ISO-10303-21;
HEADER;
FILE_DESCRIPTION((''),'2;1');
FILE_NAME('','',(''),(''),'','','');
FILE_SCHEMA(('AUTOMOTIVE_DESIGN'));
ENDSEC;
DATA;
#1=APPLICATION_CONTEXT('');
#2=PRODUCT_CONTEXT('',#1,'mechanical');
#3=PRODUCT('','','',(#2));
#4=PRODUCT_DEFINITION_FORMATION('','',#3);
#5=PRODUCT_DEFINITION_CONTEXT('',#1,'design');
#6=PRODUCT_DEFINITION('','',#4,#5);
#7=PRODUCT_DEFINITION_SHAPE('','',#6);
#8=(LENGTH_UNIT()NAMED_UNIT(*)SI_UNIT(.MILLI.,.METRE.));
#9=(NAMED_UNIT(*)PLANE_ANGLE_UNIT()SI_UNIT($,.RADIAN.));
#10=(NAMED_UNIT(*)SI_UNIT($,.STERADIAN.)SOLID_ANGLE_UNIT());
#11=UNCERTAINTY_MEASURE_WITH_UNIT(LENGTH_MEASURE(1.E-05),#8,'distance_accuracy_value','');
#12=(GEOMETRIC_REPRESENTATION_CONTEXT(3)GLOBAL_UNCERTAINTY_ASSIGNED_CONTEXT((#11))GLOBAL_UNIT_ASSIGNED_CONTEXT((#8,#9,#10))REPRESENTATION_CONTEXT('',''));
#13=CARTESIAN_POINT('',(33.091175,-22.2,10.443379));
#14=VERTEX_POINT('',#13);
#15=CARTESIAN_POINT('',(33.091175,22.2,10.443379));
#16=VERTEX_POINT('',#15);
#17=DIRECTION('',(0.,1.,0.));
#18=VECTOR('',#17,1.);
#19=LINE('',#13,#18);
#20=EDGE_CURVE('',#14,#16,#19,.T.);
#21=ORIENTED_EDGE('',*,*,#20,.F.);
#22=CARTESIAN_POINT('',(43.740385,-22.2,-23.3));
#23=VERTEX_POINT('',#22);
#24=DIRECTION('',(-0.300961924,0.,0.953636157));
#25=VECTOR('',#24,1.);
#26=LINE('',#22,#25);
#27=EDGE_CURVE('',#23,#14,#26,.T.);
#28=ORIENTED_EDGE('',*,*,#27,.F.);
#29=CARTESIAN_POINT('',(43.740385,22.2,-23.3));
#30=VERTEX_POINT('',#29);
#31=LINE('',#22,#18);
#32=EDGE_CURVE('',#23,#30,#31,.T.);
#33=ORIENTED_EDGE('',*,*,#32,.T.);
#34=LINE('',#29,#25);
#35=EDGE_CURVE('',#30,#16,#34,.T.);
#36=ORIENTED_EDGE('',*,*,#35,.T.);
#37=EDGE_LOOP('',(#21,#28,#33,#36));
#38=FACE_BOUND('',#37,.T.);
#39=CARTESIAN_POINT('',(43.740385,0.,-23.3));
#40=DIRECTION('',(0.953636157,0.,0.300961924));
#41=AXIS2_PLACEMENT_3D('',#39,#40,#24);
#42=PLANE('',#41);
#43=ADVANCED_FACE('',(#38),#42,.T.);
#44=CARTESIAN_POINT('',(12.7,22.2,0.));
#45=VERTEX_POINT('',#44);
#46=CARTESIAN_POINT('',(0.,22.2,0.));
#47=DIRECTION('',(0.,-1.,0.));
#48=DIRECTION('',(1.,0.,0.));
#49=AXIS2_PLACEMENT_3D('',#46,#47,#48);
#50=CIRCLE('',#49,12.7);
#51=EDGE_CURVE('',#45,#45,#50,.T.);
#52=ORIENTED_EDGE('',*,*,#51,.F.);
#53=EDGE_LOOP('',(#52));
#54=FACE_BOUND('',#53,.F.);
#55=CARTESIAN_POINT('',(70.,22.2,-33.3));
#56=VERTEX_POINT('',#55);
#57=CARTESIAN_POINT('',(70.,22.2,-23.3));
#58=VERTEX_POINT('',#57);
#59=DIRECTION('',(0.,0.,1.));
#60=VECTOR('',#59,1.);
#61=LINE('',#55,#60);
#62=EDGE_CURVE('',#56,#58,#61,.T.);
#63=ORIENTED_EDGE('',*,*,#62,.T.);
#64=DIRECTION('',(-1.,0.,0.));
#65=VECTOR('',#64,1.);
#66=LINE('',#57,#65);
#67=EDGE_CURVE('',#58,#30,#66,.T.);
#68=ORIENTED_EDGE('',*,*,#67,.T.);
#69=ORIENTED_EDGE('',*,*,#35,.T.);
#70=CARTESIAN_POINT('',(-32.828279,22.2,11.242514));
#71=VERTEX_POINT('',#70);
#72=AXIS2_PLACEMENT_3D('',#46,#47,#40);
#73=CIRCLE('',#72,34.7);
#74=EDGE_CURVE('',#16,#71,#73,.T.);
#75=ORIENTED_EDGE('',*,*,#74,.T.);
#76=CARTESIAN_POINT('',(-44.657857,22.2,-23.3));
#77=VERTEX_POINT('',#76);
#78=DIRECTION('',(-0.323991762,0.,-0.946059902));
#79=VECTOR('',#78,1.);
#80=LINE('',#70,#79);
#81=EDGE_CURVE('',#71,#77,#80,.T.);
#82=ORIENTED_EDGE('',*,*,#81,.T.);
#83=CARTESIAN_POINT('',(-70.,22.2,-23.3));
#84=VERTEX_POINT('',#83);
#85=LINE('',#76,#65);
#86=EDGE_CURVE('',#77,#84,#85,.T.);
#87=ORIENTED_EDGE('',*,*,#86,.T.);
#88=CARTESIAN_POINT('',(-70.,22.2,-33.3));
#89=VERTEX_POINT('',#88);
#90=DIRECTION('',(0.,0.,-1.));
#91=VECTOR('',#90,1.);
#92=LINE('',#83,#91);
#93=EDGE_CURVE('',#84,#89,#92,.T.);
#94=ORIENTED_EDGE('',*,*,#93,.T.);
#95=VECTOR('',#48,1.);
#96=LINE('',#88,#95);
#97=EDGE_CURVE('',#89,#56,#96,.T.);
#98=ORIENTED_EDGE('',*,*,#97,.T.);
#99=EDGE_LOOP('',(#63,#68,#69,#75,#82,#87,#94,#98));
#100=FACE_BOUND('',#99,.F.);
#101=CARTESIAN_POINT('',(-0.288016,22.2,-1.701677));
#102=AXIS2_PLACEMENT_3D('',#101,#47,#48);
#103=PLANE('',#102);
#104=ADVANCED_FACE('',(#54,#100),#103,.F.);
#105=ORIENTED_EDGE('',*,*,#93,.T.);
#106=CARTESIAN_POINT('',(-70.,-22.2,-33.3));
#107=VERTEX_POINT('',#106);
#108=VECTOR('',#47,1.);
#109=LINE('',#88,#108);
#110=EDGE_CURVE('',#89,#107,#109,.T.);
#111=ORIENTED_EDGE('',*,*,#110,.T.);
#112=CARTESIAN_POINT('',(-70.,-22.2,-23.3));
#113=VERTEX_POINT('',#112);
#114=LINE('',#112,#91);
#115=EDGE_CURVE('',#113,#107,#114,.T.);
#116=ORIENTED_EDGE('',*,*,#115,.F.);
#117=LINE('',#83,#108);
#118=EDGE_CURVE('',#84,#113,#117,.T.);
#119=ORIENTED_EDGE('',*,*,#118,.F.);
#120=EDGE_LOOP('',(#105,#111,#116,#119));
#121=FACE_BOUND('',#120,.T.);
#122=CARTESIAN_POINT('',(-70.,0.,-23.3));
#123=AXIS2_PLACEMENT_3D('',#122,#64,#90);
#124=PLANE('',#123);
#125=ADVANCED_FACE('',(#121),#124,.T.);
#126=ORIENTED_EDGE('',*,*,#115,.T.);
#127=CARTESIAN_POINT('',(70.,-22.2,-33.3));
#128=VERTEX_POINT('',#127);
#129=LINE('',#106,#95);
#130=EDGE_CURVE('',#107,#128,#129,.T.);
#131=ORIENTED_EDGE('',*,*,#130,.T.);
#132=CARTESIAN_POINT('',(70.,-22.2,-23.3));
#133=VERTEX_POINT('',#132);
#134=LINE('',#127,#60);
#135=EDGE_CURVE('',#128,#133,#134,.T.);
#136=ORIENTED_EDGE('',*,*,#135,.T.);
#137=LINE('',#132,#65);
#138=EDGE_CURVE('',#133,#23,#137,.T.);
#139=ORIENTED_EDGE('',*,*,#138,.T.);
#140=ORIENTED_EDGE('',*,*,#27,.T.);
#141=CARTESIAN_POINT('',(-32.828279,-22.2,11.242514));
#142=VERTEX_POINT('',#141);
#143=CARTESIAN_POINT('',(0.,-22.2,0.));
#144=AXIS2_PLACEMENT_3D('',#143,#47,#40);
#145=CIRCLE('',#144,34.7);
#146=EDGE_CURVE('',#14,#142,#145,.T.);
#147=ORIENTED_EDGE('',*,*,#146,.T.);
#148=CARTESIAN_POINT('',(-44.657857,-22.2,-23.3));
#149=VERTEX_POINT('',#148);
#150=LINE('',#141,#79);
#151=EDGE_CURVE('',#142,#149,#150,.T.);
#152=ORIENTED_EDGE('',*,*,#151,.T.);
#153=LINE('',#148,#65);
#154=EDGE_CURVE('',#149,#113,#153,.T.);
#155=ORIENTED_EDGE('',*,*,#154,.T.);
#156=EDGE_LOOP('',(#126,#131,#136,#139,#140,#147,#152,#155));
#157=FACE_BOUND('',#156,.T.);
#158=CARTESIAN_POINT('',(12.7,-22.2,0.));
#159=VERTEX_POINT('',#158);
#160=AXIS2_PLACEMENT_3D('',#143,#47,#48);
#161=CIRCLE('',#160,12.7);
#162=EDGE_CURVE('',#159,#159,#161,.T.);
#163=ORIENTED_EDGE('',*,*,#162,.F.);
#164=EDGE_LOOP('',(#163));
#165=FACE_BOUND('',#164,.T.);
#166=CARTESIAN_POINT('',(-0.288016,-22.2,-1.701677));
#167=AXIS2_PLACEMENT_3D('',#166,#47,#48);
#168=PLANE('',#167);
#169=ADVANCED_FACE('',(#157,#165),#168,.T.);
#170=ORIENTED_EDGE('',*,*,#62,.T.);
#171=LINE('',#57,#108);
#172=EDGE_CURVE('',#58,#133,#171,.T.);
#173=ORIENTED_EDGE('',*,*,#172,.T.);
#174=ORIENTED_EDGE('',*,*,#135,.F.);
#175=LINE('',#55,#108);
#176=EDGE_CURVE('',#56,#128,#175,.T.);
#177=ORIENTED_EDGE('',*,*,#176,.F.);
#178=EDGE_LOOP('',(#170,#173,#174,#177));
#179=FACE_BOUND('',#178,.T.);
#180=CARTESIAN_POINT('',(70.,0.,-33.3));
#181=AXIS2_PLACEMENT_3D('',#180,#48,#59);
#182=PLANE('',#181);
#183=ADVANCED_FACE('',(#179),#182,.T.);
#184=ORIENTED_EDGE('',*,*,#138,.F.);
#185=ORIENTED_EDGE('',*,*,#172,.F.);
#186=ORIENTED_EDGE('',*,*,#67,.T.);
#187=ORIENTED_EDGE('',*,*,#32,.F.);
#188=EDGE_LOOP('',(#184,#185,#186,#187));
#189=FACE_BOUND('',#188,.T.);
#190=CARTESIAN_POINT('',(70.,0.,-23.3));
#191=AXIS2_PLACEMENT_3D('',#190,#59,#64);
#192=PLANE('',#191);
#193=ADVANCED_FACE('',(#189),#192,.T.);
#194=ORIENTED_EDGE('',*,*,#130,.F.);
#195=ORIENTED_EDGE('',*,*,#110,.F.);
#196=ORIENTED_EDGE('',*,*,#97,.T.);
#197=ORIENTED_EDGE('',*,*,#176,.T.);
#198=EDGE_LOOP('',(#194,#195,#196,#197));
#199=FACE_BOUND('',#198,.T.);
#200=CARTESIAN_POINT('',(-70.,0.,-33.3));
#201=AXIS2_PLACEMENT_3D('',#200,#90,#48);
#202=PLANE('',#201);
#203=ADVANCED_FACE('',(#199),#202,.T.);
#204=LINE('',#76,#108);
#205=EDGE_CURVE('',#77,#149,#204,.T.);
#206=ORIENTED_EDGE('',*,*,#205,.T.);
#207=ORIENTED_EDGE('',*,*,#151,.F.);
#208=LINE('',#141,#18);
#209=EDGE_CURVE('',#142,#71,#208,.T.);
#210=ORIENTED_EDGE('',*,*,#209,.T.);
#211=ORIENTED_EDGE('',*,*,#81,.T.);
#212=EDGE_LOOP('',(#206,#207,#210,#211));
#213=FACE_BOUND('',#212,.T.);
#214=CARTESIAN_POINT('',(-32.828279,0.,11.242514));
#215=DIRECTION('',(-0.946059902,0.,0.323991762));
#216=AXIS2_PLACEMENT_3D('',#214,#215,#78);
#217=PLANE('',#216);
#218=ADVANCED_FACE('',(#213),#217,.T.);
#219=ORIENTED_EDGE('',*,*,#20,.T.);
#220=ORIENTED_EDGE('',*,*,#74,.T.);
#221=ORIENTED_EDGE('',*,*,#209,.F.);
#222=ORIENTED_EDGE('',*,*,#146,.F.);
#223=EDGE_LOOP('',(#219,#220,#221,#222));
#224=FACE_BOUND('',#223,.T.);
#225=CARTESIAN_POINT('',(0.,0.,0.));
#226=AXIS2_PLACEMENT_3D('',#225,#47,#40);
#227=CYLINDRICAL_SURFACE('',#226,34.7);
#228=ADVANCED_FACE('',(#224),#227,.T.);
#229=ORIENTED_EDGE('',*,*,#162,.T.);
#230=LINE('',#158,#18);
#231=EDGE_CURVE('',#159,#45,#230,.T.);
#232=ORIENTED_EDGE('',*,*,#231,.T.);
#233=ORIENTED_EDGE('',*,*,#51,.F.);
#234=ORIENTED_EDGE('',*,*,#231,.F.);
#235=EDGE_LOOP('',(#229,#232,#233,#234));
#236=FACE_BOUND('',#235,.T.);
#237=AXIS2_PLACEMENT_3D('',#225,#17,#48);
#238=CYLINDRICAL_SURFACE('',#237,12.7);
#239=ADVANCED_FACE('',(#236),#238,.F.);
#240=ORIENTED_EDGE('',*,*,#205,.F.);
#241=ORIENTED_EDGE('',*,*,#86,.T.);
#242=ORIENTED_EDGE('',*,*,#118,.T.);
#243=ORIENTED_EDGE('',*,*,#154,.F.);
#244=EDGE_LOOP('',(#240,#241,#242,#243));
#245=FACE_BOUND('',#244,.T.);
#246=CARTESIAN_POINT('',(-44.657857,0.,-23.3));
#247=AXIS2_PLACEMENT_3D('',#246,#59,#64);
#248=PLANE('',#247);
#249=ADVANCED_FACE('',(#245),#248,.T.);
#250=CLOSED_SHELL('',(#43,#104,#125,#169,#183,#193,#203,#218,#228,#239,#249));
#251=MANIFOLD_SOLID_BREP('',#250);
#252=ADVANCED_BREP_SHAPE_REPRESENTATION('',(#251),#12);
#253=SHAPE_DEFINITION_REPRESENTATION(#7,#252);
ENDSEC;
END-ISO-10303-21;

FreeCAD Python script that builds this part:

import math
import FreeCAD as App
import Part
import Sketcher

V = App.Vector

doc = App.newDocument("Part")
body = doc.addObject("PartDesign::Body", "Body")

# Sketch on XZ plane
sketch1 = body.newObject("Sketcher::SketchObject", "Sketch")
sketch1.AttachmentSupport = (doc.getObject("XZ_Plane"), [""])
sketch1.MapMode = "FlatFace"
sketch1.addGeometry([
    Part.LineSegment(V(-33, 11, 0), V(-45, -23, 0)),  # 0
    Part.LineSegment(V(-45, -23, 0), V(-70, -23, 0)),  # 1
    Part.LineSegment(V(-70, -23, 0), V(-70, -33, 0)),  # 2
    Part.LineSegment(V(-70, -33, 0), V(70, -33, 0)),  # 3
    Part.LineSegment(V(70, -33, 0), V(70, -23, 0)),  # 4
    Part.LineSegment(V(70, -23, 0), V(44, -23, 0)),  # 5
    Part.LineSegment(V(44, -23, 0), V(33, 10, 0)),  # 6
    Part.ArcOfCircle(Part.Circle(V(0, 0, 0), V(0, 0, 1), 35), math.radians(18), math.radians(161)),  # 7
    Part.Circle(V(0, 0, 0), V(0, 0, 1), 13),  # 8
], False)
sketch1.addConstraint([
    Sketcher.Constraint("Coincident", 0, 2, 1, 1),
    Sketcher.Constraint("Coincident", 1, 2, 2, 1),
    Sketcher.Constraint("Coincident", 2, 2, 3, 1),
    Sketcher.Constraint("Coincident", 3, 2, 4, 1),
    Sketcher.Constraint("Coincident", 4, 2, 5, 1),
    Sketcher.Constraint("Coincident", 5, 2, 6, 1),
    Sketcher.Constraint("Tangent", 6, 2, 7, 1),
    Sketcher.Constraint("Tangent", 7, 2, 0, 1),
    Sketcher.Constraint("Horizontal", 1),
    Sketcher.Constraint("Vertical", 2),
    Sketcher.Constraint("Horizontal", 3),
    Sketcher.Constraint("Vertical", 4),
    Sketcher.Constraint("Horizontal", 5),
    Sketcher.Constraint("Coincident", 7, 3, -1, 1),
    Sketcher.Constraint("Coincident", 8, 3, -1, 1),
    Sketcher.Constraint("Symmetric", 1, 2, 4, 2, -2),
    Sketcher.Constraint("Diameter", 8, 25.4),
    Sketcher.Constraint("Radius", 7, 34.7),
    Sketcher.Constraint("DistanceX", 3, 1, 3, 2, 140.0),
    Sketcher.Constraint("DistanceY", 2, 2, 2, 1, 10.0),
    Sketcher.Constraint("DistanceY", 0, 2, -1, 1, 23.3),
    Sketcher.Constraint("DistanceX", 1, 2, 1, 1, 25.342143),
    Sketcher.Constraint("DistanceX", 5, 2, 5, 1, 26.259615),
])
pad1 = body.newObject("PartDesign::Pad", "Pad")
pad1.Profile = sketch1
pad1.Length = 44.4
pad1.Midplane = True

doc.recompute()
